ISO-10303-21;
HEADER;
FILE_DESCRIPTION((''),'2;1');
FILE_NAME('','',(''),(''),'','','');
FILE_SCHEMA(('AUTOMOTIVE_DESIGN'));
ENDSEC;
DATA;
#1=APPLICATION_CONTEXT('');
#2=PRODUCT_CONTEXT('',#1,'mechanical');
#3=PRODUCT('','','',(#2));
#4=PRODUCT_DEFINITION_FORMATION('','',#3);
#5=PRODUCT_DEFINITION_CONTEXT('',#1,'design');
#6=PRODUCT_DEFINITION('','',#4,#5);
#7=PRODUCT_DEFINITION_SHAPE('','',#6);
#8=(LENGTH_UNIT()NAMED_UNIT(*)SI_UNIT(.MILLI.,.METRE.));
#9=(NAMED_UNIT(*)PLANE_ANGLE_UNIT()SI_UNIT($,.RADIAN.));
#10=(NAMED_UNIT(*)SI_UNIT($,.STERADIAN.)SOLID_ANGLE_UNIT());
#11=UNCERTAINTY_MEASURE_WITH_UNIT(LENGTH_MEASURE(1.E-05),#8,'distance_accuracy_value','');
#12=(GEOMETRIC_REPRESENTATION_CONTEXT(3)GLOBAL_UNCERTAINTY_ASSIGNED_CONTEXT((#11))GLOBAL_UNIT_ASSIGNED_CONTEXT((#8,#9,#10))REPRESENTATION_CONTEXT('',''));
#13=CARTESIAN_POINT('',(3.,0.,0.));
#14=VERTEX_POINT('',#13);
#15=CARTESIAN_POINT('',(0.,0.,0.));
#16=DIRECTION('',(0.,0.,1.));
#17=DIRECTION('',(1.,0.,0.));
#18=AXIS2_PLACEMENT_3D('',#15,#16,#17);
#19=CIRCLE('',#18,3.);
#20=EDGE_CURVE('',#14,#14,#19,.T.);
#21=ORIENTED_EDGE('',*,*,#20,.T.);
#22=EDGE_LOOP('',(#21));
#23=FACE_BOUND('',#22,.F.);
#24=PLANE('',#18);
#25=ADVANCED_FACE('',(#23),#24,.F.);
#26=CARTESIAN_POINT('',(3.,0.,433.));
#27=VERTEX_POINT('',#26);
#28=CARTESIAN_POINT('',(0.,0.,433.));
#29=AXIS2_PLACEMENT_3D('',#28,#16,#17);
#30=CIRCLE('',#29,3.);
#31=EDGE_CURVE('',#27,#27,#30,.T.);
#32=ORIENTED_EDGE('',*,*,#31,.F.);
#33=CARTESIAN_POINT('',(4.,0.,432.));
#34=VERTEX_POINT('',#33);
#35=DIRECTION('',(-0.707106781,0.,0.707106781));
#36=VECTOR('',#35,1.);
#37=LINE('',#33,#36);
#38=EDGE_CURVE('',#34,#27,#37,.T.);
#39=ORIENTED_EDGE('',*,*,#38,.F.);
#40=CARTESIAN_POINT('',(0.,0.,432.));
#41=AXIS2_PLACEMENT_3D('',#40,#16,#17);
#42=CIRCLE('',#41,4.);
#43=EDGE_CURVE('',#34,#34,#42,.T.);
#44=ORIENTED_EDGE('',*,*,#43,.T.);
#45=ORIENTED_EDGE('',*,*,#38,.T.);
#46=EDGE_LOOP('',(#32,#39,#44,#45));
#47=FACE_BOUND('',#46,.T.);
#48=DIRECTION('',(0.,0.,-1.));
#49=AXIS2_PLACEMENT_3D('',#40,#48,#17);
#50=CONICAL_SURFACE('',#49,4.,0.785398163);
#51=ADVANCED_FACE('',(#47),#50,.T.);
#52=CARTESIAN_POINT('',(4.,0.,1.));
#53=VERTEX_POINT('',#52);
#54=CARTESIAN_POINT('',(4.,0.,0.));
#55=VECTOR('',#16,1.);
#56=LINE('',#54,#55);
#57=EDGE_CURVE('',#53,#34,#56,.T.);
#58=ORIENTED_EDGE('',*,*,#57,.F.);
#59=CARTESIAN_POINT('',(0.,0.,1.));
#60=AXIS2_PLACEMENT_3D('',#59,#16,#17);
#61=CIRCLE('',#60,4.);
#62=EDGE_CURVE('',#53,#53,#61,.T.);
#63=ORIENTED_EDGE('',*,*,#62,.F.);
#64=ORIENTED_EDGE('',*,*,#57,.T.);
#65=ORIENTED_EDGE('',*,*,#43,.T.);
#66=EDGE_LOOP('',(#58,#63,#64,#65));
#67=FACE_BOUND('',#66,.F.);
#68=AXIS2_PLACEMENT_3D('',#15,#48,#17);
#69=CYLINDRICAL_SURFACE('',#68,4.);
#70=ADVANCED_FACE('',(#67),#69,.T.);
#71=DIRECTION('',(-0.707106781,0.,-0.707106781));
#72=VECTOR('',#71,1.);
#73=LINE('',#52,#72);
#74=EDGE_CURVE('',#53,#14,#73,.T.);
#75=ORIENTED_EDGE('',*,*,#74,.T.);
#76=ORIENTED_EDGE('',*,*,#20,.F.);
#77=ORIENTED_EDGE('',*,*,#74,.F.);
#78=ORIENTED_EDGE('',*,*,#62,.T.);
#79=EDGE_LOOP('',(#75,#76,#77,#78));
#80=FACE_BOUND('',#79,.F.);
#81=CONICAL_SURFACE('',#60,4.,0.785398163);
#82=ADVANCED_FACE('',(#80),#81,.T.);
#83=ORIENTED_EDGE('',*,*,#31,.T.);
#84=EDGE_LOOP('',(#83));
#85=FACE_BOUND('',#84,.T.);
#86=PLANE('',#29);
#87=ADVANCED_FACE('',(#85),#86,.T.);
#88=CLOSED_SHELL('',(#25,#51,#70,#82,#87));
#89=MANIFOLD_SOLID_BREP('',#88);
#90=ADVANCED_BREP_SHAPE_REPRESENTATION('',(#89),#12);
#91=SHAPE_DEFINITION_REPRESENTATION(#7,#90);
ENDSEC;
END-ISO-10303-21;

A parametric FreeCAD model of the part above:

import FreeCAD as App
import Part
import Sketcher
from FreeCAD import Vector
Q = App.Units.Quantity


def edges_at(feature, points):
    """Names of the edges that pass closest to the given points."""
    edges = feature.Shape.Edges
    near = lambda p: min(range(len(edges)), key=lambda i: edges[i].distToShape(Part.Vertex(*p))[0])
    return sorted({f"Edge{near(p) + 1}" for p in points})

doc = App.newDocument("Part")
params = doc.addObject("Spreadsheet::Sheet", "Params")
for row, (alias, value) in enumerate([
    ("sketch1_diameter", "8 mm"),
    ("pad1_length", "433 mm"),
    ("chamfer_size", "1 mm"),
], start=1):
    params.set(f"A{row}", alias)
    params.set(f"B{row}", "=" + value)
    params.setAlias(f"B{row}", alias)

body = doc.addObject("PartDesign::Body", "Body")

# Sketch on XY plane
sketch1 = body.newObject("Sketcher::SketchObject", "Sketch")
sketch1.AttachmentSupport = (doc.getObject("XY_Plane"), [""])
sketch1.MapMode = "FlatFace"
sketch1.addGeometry(Part.Circle(Vector(0, 0, 0), Vector(0, 0, 1), 4), False)
sketch1.addConstraint([
    Sketcher.Constraint("Coincident", 0, 3, -1, 1),
    Sketcher.Constraint("Diameter", 0, Q("8 mm")),
])
sketch1.setExpression("Constraints[1]", "Params.sketch1_diameter")
pad1 = body.newObject("PartDesign::Pad", "Pad")
pad1.Profile = sketch1
pad1.setExpression("Length", "Params.pad1_length")
doc.recompute()

chamfer = body.newObject("PartDesign::Chamfer", "Chamfer")
chamfer.Base = (pad1, edges_at(pad1, [(-4, 0, 0), (-4, 0, 433)]))
chamfer.setExpression("Size", "Params.chamfer_size")

doc.recompute()
